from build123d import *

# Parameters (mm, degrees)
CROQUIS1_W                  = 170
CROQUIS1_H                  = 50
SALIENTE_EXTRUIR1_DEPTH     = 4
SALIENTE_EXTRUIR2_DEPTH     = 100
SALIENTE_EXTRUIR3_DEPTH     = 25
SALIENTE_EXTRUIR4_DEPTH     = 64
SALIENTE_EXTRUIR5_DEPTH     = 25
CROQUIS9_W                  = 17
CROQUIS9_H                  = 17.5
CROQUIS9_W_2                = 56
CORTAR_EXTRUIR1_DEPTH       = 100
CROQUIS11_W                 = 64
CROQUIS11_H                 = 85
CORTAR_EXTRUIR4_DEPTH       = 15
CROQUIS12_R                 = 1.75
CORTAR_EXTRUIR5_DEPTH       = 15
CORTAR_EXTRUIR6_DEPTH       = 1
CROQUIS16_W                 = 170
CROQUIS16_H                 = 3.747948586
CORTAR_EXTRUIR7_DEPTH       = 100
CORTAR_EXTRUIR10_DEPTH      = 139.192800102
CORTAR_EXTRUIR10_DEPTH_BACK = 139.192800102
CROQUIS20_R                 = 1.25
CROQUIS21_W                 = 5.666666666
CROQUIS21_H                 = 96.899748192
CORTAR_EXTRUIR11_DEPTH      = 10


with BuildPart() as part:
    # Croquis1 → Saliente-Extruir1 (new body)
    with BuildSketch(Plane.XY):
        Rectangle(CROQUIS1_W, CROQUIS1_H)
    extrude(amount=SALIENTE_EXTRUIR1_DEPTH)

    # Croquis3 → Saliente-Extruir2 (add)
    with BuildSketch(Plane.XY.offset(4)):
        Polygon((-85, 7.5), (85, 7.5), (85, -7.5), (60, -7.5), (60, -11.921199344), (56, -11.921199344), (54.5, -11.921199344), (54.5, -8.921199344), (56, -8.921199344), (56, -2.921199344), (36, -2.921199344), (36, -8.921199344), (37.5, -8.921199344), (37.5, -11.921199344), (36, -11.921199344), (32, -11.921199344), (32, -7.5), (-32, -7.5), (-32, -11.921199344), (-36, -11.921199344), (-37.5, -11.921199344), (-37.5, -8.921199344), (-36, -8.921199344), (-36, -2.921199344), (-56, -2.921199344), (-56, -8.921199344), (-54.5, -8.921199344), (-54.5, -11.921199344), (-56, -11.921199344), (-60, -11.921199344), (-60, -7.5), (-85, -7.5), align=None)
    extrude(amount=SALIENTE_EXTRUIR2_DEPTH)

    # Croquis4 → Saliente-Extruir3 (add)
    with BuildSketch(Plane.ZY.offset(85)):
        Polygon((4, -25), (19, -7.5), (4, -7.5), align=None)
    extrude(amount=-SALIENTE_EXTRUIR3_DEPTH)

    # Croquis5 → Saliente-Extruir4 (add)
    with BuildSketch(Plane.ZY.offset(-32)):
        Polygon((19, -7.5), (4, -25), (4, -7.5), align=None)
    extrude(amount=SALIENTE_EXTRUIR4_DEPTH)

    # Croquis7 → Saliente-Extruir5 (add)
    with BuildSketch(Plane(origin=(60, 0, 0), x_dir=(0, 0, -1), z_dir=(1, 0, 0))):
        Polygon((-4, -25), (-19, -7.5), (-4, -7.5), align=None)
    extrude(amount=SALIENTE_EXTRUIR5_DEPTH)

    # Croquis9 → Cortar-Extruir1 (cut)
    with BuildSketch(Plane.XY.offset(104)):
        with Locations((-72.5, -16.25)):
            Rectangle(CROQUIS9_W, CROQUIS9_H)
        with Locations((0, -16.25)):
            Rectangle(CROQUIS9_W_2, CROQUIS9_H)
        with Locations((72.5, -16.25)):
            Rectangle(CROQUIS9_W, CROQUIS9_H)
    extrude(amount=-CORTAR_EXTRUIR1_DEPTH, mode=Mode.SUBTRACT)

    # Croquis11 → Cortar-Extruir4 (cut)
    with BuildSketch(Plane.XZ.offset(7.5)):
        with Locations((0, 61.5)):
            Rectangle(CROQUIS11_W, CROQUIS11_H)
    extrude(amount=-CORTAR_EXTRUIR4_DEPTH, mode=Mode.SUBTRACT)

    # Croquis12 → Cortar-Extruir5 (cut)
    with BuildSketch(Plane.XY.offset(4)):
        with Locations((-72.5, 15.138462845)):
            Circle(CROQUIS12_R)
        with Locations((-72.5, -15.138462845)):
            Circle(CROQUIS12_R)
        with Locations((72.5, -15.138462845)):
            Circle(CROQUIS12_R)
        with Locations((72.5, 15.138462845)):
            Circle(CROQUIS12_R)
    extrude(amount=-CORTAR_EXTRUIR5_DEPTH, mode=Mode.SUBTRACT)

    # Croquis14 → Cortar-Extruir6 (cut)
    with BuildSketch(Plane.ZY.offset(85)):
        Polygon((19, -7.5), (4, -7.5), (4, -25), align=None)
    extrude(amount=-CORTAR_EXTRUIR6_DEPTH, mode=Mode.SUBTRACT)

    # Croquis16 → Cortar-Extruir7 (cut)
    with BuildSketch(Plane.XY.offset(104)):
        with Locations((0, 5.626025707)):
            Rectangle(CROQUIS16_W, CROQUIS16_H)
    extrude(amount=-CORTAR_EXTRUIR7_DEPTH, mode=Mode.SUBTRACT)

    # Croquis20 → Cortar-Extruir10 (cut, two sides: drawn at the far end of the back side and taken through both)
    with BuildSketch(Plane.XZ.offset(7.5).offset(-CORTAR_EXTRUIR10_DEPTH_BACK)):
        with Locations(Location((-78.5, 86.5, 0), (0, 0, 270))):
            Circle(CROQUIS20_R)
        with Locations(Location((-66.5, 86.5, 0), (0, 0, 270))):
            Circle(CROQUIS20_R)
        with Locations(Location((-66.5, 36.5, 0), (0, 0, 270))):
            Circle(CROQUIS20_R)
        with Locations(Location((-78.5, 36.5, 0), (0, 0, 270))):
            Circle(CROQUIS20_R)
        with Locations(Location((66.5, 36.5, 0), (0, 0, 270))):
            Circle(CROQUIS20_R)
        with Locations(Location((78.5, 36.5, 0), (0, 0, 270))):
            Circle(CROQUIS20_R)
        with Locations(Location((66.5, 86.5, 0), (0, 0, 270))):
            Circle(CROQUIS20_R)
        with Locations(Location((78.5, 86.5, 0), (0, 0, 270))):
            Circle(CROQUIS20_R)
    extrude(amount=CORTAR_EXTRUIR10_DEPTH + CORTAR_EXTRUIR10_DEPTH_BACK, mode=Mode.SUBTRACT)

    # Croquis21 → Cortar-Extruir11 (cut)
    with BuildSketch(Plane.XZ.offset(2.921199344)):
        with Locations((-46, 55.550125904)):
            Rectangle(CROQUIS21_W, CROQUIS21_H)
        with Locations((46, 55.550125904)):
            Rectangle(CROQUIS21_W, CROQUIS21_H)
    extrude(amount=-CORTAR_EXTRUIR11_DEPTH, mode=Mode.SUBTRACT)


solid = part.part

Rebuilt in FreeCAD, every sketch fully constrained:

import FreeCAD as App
import Part
import Sketcher
from FreeCAD import Vector

doc = App.newDocument("Part")
params = doc.addObject("Spreadsheet::Sheet", "Params")
for row, (alias, value) in enumerate([
    ("sketch1_width", "170 mm"),
    ("sketch1_height", "50 mm"),
    ("pad1_length", "4 mm"),
    ("sketch2_width", "170 mm"),
    ("sketch2_width2", "25 mm"),
    ("sketch2_width3", "20 mm"),
    ("sketch2_width4", "64 mm"),
    ("sketch2_height", "15 mm"),
    ("pad2_length", "100 mm"),
    ("sketch3_height", "15 mm"),
    ("sketch3_width", "17.5 mm"),
    ("pad3_length", "25 mm"),
    ("sketch4_height", "15 mm"),
    ("sketch4_width", "17.5 mm"),
    ("pad4_length", "64 mm"),
    ("sketch5_height", "15 mm"),
    ("sketch5_width", "17.5 mm"),
    ("pad5_length", "25 mm"),
    ("sketch6_width", "17 mm"),
    ("sketch6_width2", "56 mm"),
    ("sketch6_height", "17.5 mm"),
    ("pocket1_length", "100 mm"),
    ("sketch7_width", "64 mm"),
    ("sketch7_height", "85 mm"),
    ("pocket2_length", "15 mm"),
    ("sketch8_diameter", "3.5 mm"),
    ("pocket3_length", "15 mm"),
    ("sketch9_height", "15 mm"),
    ("sketch9_width", "17.5 mm"),
    ("pocket4_length", "1 mm"),
    ("sketch10_width", "170 mm"),
    ("pocket5_length", "100 mm"),
    ("sketch11_diameter", "2.5 mm"),
    ("pocket7_length", "10 mm"),
], start=1):
    params.set(f"A{row}", alias)
    params.set(f"B{row}", "=" + value)
    params.setAlias(f"B{row}", alias)

body = doc.addObject("PartDesign::Body", "Body")

# Sketch on XY plane
sketch1 = body.newObject("Sketcher::SketchObject", "Sketch")
sketch1.AttachmentSupport = (doc.getObject("XY_Plane"), [""])
sketch1.MapMode = "FlatFace"
sketch1.addGeometry([
    Part.LineSegment(Vector(-85, 25, 0), Vector(-85, -25, 0)),
    Part.LineSegment(Vector(-85, -25, 0), Vector(85, -25, 0)),
    Part.LineSegment(Vector(85, -25, 0), Vector(85, 25, 0)),
    Part.LineSegment(Vector(85, 25, 0), Vector(-85, 25, 0)),
], False)
sketch1.addConstraint([
    Sketcher.Constraint("Coincident", 0, 2, 1, 1),
    Sketcher.Constraint("Coincident", 1, 2, 2, 1),
    Sketcher.Constraint("Coincident", 2, 2, 3, 1),
    Sketcher.Constraint("Coincident", 3, 2, 0, 1),
    Sketcher.Constraint("Vertical", 0),
    Sketcher.Constraint("Horizontal", 1),
    Sketcher.Constraint("Vertical", 2),
    Sketcher.Constraint("Horizontal", 3),
    Sketcher.Constraint("Symmetric", 0, 2, 2, 2, -1, 1),
    Sketcher.Constraint("DistanceX", 1, 1, 1, 2, 170.0),
    Sketcher.Constraint("DistanceY", 0, 2, 0, 1, 50.0),
])
sketch1.setExpression("Constraints[9]", "Params.sketch1_width")
sketch1.setExpression("Constraints[10]", "Params.sketch1_height")
pad1 = body.newObject("PartDesign::Pad", "Pad")
pad1.Profile = sketch1
pad1.setExpression("Length", "Params.pad1_length")

# Sketch on XY plane
sketch2 = body.newObject("Sketcher::SketchObject", "Sketch001")
sketch2.AttachmentSupport = (doc.getObject("XY_Plane"), [""])
sketch2.MapMode = "FlatFace"
sketch2.AttachmentOffset = App.Placement(Vector(0, 0, 4), App.Rotation())
sketch2.addGeometry([
    Part.LineSegment(Vector(85, 7.5, 0), Vector(-85, 7.5, 0)),  # 0
    Part.LineSegment(Vector(-85, 7.5, 0), Vector(-85, -7.5, 0)),  # 1
    Part.LineSegment(Vector(-85, -7.5, 0), Vector(-60, -7.5, 0)),  # 2
    Part.LineSegment(Vector(-60, -7.5, 0), Vector(-60, -11.9, 0)),  # 3
    Part.LineSegment(Vector(-60, -11.9, 0), Vector(-54.5, -11.9, 0)),  # 4
    Part.LineSegment(Vector(-54.5, -11.9, 0), Vector(-54.5, -8.9, 0)),  # 5
    Part.LineSegment(Vector(-54.5, -8.9, 0), Vector(-56, -8.9, 0)),  # 6
    Part.LineSegment(Vector(-56, -8.9, 0), Vector(-56, -2.9, 0)),  # 7
    Part.LineSegment(Vector(-56, -2.9, 0), Vector(-36, -2.9, 0)),  # 8
    Part.LineSegment(Vector(-36, -2.9, 0), Vector(-36, -8.9, 0)),  # 9
    Part.LineSegment(Vector(-36, -8.9, 0), Vector(-37.5, -8.9, 0)),  # 10
    Part.LineSegment(Vector(-37.5, -8.9, 0), Vector(-37.5, -11.9, 0)),  # 11
    Part.LineSegment(Vector(-37.5, -11.9, 0), Vector(-32, -11.9, 0)),  # 12
    Part.LineSegment(Vector(-32, -11.9, 0), Vector(-32, -7.5, 0)),  # 13
    Part.LineSegment(Vector(-32, -7.5, 0), Vector(32, -7.5, 0)),  # 14
    Part.LineSegment(Vector(32, -7.5, 0), Vector(32, -11.9, 0)),  # 15
    Part.LineSegment(Vector(32, -11.9, 0), Vector(37.5, -11.9, 0)),  # 16
    Part.LineSegment(Vector(37.5, -11.9, 0), Vector(37.5, -8.9, 0)),  # 17
    Part.LineSegment(Vector(37.5, -8.9, 0), Vector(36, -8.9, 0)),  # 18
    Part.LineSegment(Vector(36, -8.9, 0), Vector(36, -2.9, 0)),  # 19
    Part.LineSegment(Vector(36, -2.9, 0), Vector(56, -2.9, 0)),  # 20
    Part.LineSegment(Vector(56, -2.9, 0), Vector(56, -8.9, 0)),  # 21
    Part.LineSegment(Vector(56, -8.9, 0), Vector(54.5, -8.9, 0)),  # 22
    Part.LineSegment(Vector(54.5, -8.9, 0), Vector(54.5, -11.9, 0)),  # 23
    Part.LineSegment(Vector(54.5, -11.9, 0), Vector(60, -11.9, 0)),  # 24
    Part.LineSegment(Vector(60, -11.9, 0), Vector(60, -7.5, 0)),  # 25
    Part.LineSegment(Vector(60, -7.5, 0), Vector(85, -7.5, 0)),  # 26
    Part.LineSegment(Vector(85, -7.5, 0), Vector(85, 7.5, 0)),  # 27
], False)
sketch2.addConstraint([
    Sketcher.Constraint("Coincident", 0, 2, 1, 1),
    Sketcher.Constraint("Coincident", 1, 2, 2, 1),
    Sketcher.Constraint("Coincident", 2, 2, 3, 1),
    Sketcher.Constraint("Coincident", 3, 2, 4, 1),
    Sketcher.Constraint("Coincident", 4, 2, 5, 1),
    Sketcher.Constraint("Coincident", 5, 2, 6, 1),
    Sketcher.Constraint("Coincident", 6, 2, 7, 1),
    Sketcher.Constraint("Coincident", 7, 2, 8, 1),
    Sketcher.Constraint("Coincident", 8, 2, 9, 1),
    Sketcher.Constraint("Coincident", 9, 2, 10, 1),
    Sketcher.Constraint("Coincident", 10, 2, 11, 1),
    Sketcher.Constraint("Coincident", 11, 2, 12, 1),
    Sketcher.Constraint("Coincident", 12, 2, 13, 1),
    Sketcher.Constraint("Coincident", 13, 2, 14, 1),
    Sketcher.Constraint("Coincident", 14, 2, 15, 1),
    Sketcher.Constraint("Coincident", 15, 2, 16, 1),
    Sketcher.Constraint("Coincident", 16, 2, 17, 1),
    Sketcher.Constraint("Coincident", 17, 2, 18, 1),
    Sketcher.Constraint("Coincident", 18, 2, 19, 1),
    Sketcher.Constraint("Coincident", 19, 2, 20, 1),
    Sketcher.Constraint("Coincident", 20, 2, 21, 1),
    Sketcher.Constraint("Coincident", 21, 2, 22, 1),
    Sketcher.Constraint("Coincident", 22, 2, 23, 1),
    Sketcher.Constraint("Coincident", 23, 2, 24, 1),
    Sketcher.Constraint("Coincident", 24, 2, 25, 1),
    Sketcher.Constraint("Coincident", 25, 2, 26, 1),
    Sketcher.Constraint("Coincident", 26, 2, 27, 1),
    Sketcher.Constraint("Coincident", 27, 2, 0, 1),
    Sketcher.Constraint("Horizontal", 0),
    Sketcher.Constraint("Vertical", 1),
    Sketcher.Constraint("Horizontal", 2),
    Sketcher.Constraint("Vertical", 3),
    Sketcher.Constraint("Horizontal", 4),
    Sketcher.Constraint("Vertical", 5),
    Sketcher.Constraint("Horizontal", 6),
    Sketcher.Constraint("Vertical", 7),
    Sketcher.Constraint("Horizontal", 8),
    Sketcher.Constraint("Vertical", 9),
    Sketcher.Constraint("Horizontal", 10),
    Sketcher.Constraint("Vertical", 11),
    Sketcher.Constraint("Horizontal", 12),
    Sketcher.Constraint("Vertical", 13),
    Sketcher.Constraint("Horizontal", 14),
    Sketcher.Constraint("Vertical", 15),
    Sketcher.Constraint("Horizontal", 16),
    Sketcher.Constraint("Vertical", 17),
    Sketcher.Constraint("Horizontal", 18),
    Sketcher.Constraint("Vertical", 19),
    Sketcher.Constraint("Horizontal", 20),
    Sketcher.Constraint("Vertical", 21),
    Sketcher.Constraint("Horizontal", 22),
    Sketcher.Constraint("Vertical", 23),
    Sketcher.Constraint("Horizontal", 24),
    Sketcher.Constraint("Vertical", 25),
    Sketcher.Constraint("Horizontal", 26),
    Sketcher.Constraint("Vertical", 27),
    Sketcher.Constraint("Symmetric", 0, 2, 26, 2, -1, 1),
    Sketcher.Constraint("Symmetric", 12, 2, 15, 2, -2),
    Sketcher.Constraint("Symmetric", 10, 2, 17, 2, -2),
    Sketcher.Constraint("Symmetric", 8, 2, 19, 2, -2),
    Sketcher.Constraint("Symmetric", 6, 2, 21, 2, -2),
    Sketcher.Constraint("Symmetric", 4, 2, 23, 2, -2),
    Sketcher.Constraint("Symmetric", 2, 2, 25, 2, -2),
    Sketcher.Constraint("Horizontal", 6, 2, 9, 2),
    Sketcher.Constraint("Horizontal", 4, 2, 11, 2),
    Sketcher.Constraint("Horizontal", 2, 2, 13, 2),
    Sketcher.Constraint("Equal", 6, 10),
    Sketcher.Constraint("Equal", 4, 12),
    Sketcher.Constraint("DistanceX", 0, 2, 0, 1, 170.0),
    Sketcher.Constraint("DistanceX", 2, 1, 2, 2, 25.0),
    Sketcher.Constraint("DistanceX", 8, 1, 8, 2, 20.0),
    Sketcher.Constraint("DistanceX", 14, 1, 14, 2, 64.0),
    Sketcher.Constraint("DistanceY", 1, 2, 1, 1, 15.0),
    Sketcher.Constraint("DistanceY", 5, 1, 5, 2, 3.0),
    Sketcher.Constraint("DistanceY", 7, 1, 7, 2, 6.0),
    Sketcher.Constraint("DistanceX", 4, 1, 4, 2, 5.5),
    Sketcher.Constraint("DistanceY", 3, 2, 3, 1, 4.421199),
])
sketch2.setExpression("Constraints[68]", "Params.sketch2_width")
sketch2.setExpression("Constraints[69]", "Params.sketch2_width2")
sketch2.setExpression("Constraints[70]", "Params.sketch2_width3")
sketch2.setExpression("Constraints[71]", "Params.sketch2_width4")
sketch2.setExpression("Constraints[72]", "Params.sketch2_height")
pad2 = body.newObject("PartDesign::Pad", "Pad001")
pad2.Profile = sketch2
pad2.setExpression("Length", "Params.pad2_length")

# Sketch on YZ plane
sketch3 = body.newObject("Sketcher::SketchObject", "Sketch002")
sketch3.AttachmentSupport = (doc.getObject("YZ_Plane"), [""])
sketch3.MapMode = "FlatFace"
sketch3.AttachmentOffset = App.Placement(Vector(0, 0, -85), App.Rotation())
sketch3.addGeometry([
    Part.LineSegment(Vector(-25, 4, 0), Vector(-8, 19, 0)),
    Part.LineSegment(Vector(-8, 19, 0), Vector(-8, 4, 0)),
    Part.LineSegment(Vector(-8, 4, 0), Vector(-25, 4, 0)),
], False)
sketch3.addConstraint([
    Sketcher.Constraint("Coincident", 0, 2, 1, 1),
    Sketcher.Constraint("Coincident", 1, 2, 2, 1),
    Sketcher.Constraint("Coincident", 2, 2, 0, 1),
    Sketcher.Constraint("Vertical", 1),
    Sketcher.Constraint("Horizontal", 2),
    Sketcher.Constraint("DistanceY", 1, 2, 1, 1, 15.0),
    Sketcher.Constraint("DistanceX", 2, 2, 2, 1, 17.5),
    Sketcher.Constraint("DistanceY", -1, 1, 0, 2, 19.0),
    Sketcher.Constraint("DistanceX", 2, 2, -1, 1, 25.0),
])
sketch3.setExpression("Constraints[5]", "Params.sketch3_height")
sketch3.setExpression("Constraints[6]", "Params.sketch3_width")
pad3 = body.newObject("PartDesign::Pad", "Pad002")
pad3.Profile = sketch3
pad3.setExpression("Length", "Params.pad3_length")

# Sketch on YZ plane
sketch4 = body.newObject("Sketcher::SketchObject", "Sketch003")
sketch4.AttachmentSupport = (doc.getObject("YZ_Plane"), [""])
sketch4.MapMode = "FlatFace"
sketch4.AttachmentOffset = App.Placement(Vector(0, 0, 32), App.Rotation())
sketch4.addGeometry([
    Part.LineSegment(Vector(-25, 4, 0), Vector(-8, 19, 0)),
    Part.LineSegment(Vector(-8, 19, 0), Vector(-8, 4, 0)),
    Part.LineSegment(Vector(-8, 4, 0), Vector(-25, 4, 0)),
], False)
sketch4.addConstraint([
    Sketcher.Constraint("Coincident", 0, 2, 1, 1),
    Sketcher.Constraint("Coincident", 1, 2, 2, 1),
    Sketcher.Constraint("Coincident", 2, 2, 0, 1),
    Sketcher.Constraint("Vertical", 1),
    Sketcher.Constraint("Horizontal", 2),
    Sketcher.Constraint("DistanceY", 1, 2, 1, 1, 15.0),
    Sketcher.Constraint("DistanceX", 2, 2, 2, 1, 17.5),
    Sketcher.Constraint("DistanceY", -1, 1, 0, 2, 19.0),
    Sketcher.Constraint("DistanceX", 2, 2, -1, 1, 25.0),
])
sketch4.setExpression("Constraints[5]", "Params.sketch4_height")
sketch4.setExpression("Constraints[6]", "Params.sketch4_width")
pad4 = body.newObject("PartDesign::Pad", "Pad003")
pad4.Profile = sketch4
pad4.setExpression("Length", "Params.pad4_length")
pad4.Reversed = True

# Sketch on YZ plane
sketch5 = body.newObject("Sketcher::SketchObject", "Sketch004")
sketch5.AttachmentSupport = (doc.getObject("YZ_Plane"), [""])
sketch5.MapMode = "FlatFace"
sketch5.AttachmentOffset = App.Placement(Vector(0, 0, 60), App.Rotation())
sketch5.addGeometry([
    Part.LineSegment(Vector(-8, 19, 0), Vector(-25, 4, 0)),
    Part.LineSegment(Vector(-25, 4, 0), Vector(-8, 4, 0)),
    Part.LineSegment(Vector(-8, 4, 0), Vector(-8, 19, 0)),
], False)
sketch5.addConstraint([
    Sketcher.Constraint("Coincident", 0, 2, 1, 1),
    Sketcher.Constraint("Coincident", 1, 2, 2, 1),
    Sketcher.Constraint("Coincident", 2, 2, 0, 1),
    Sketcher.Constraint("Horizontal", 1),
    Sketcher.Constraint("Vertical", 2),
    Sketcher.Constraint("DistanceY", 2, 1, 2, 2, 15.0),
    Sketcher.Constraint("DistanceX", 1, 1, 1, 2, 17.5),
    Sketcher.Constraint("DistanceX", 0, 2, -1, 1, 25.0),
    Sketcher.Constraint("DistanceY", -1, 1, 0, 2, 4.0),
])
sketch5.setExpression("Constraints[5]", "Params.sketch5_height")
sketch5.setExpression("Constraints[6]", "Params.sketch5_width")
pad5 = body.newObject("PartDesign::Pad", "Pad004")
pad5.Profile = sketch5
pad5.setExpression("Length", "Params.pad5_length")

# Sketch on XY plane
sketch6 = body.newObject("Sketcher::SketchObject", "Sketch005")
sketch6.AttachmentSupport = (doc.getObject("XY_Plane"), [""])
sketch6.MapMode = "FlatFace"
sketch6.AttachmentOffset = App.Placement(Vector(0, 0, 104), App.Rotation())
sketch6.addGeometry([
    Part.LineSegment(Vector(-81, -8, 0), Vector(-81, -25, 0)),  # 0
    Part.LineSegment(Vector(-81, -25, 0), Vector(-64, -25, 0)),  # 1
    Part.LineSegment(Vector(-64, -25, 0), Vector(-64, -8, 0)),  # 2
    Part.LineSegment(Vector(-64, -8, 0), Vector(-81, -8, 0)),  # 3
    Part.LineSegment(Vector(-28, -8, 0), Vector(-28, -25, 0)),  # 4
    Part.LineSegment(Vector(-28, -25, 0), Vector(28, -25, 0)),  # 5
    Part.LineSegment(Vector(28, -25, 0), Vector(28, -8, 0)),  # 6
    Part.LineSegment(Vector(28, -8, 0), Vector(-28, -8, 0)),  # 7
    Part.LineSegment(Vector(64, -8, 0), Vector(64, -25, 0)),  # 8
    Part.LineSegment(Vector(64, -25, 0), Vector(81, -25, 0)),  # 9
    Part.LineSegment(Vector(81, -25, 0), Vector(81, -8, 0)),  # 10
    Part.LineSegment(Vector(81, -8, 0), Vector(64, -8, 0)),  # 11
], False)
sketch6.addConstraint([
    Sketcher.Constraint("Coincident", 0, 2, 1, 1),
    Sketcher.Constraint("Coincident", 1, 2, 2, 1),
    Sketcher.Constraint("Coincident", 2, 2, 3, 1),
    Sketcher.Constraint("Coincident", 3, 2, 0, 1),
    Sketcher.Constraint("Coincident", 4, 2, 5, 1),
    Sketcher.Constraint("Coincident", 5, 2, 6, 1),
    Sketcher.Constraint("Coincident", 6, 2, 7, 1),
    Sketcher.Constraint("Coincident", 7, 2, 4, 1),
    Sketcher.Constraint("Coincident", 8, 2, 9, 1),
    Sketcher.Constraint("Coincident", 9, 2, 10, 1),
    Sketcher.Constraint("Coincident", 10, 2, 11, 1),
    Sketcher.Constraint("Coincident", 11, 2, 8, 1),
    Sketcher.Constraint("Vertical", 0),
    Sketcher.Constraint("Horizontal", 1),
    Sketcher.Constraint("Vertical", 2),
    Sketcher.Constraint("Horizontal", 3),
    Sketcher.Constraint("Vertical", 4),
    Sketcher.Constraint("Horizontal", 5),
    Sketcher.Constraint("Vertical", 6),
    Sketcher.Constraint("Horizontal", 7),
    Sketcher.Constraint("Vertical", 8),
    Sketcher.Constraint("Horizontal", 9),
    Sketcher.Constraint("Vertical", 10),
    Sketcher.Constraint("Horizontal", 11),
    Sketcher.Constraint("Symmetric", 1, 2, 8, 2, -2),
    Sketcher.Constraint("Symmetric", 3, 2, 10, 2, -2),
    Sketcher.Constraint("Horizontal", 1, 2, 4, 2),
    Sketcher.Constraint("Horizontal", 3, 2, 6, 2),
    Sketcher.Constraint("DistanceX", 1, 1, 1, 2, 17.0),
    Sketcher.Constraint("DistanceX", 5, 1, 5, 2, 56.0),
    Sketcher.Constraint("DistanceY", 0, 2, 0, 1, 17.5),
    Sketcher.Constraint("DistanceX", 0, 2, -1, 1, 81.0),
    Sketcher.Constraint("DistanceY", 0, 2, -1, 1, 25.0),
    Sketcher.Constraint("DistanceX", 4, 2, -1, 1, 28.0),
])
sketch6.setExpression("Constraints[28]", "Params.sketch6_width")
sketch6.setExpression("Constraints[29]", "Params.sketch6_width2")
sketch6.setExpression("Constraints[30]", "Params.sketch6_height")
pocket1 = body.newObject("PartDesign::Pocket", "Pocket")
pocket1.Profile = sketch6
pocket1.setExpression("Length", "Params.pocket1_length")

# Sketch on XZ plane
sketch7 = body.newObject("Sketcher::SketchObject", "Sketch006")
sketch7.AttachmentSupport = (doc.getObject("XZ_Plane"), [""])
sketch7.MapMode = "FlatFace"
sketch7.AttachmentOffset = App.Placement(Vector(0, 0, 7.5), App.Rotation())
sketch7.addGeometry([
    Part.LineSegment(Vector(-32, 104, 0), Vector(-32, 19, 0)),
    Part.LineSegment(Vector(-32, 19, 0), Vector(32, 19, 0)),
    Part.LineSegment(Vector(32, 19, 0), Vector(32, 104, 0)),
    Part.LineSegment(Vector(32, 104, 0), Vector(-32, 104, 0)),
], False)
sketch7.addConstraint([
    Sketcher.Constraint("Coincident", 0, 2, 1, 1),
    Sketcher.Constraint("Coincident", 1, 2, 2, 1),
    Sketcher.Constraint("Coincident", 2, 2, 3, 1),
    Sketcher.Constraint("Coincident", 3, 2, 0, 1),
    Sketcher.Constraint("Vertical", 0),
    Sketcher.Constraint("Horizontal", 1),
    Sketcher.Constraint("Vertical", 2),
    Sketcher.Constraint("Horizontal", 3),
    Sketcher.Constraint("DistanceX", 1, 1, 1, 2, 64.0),
    Sketcher.Constraint("DistanceY", 0, 2, 0, 1, 85.0),
    Sketcher.Constraint("DistanceX", 0, 2, -1, 1, 32.0),
    Sketcher.Constraint("DistanceY", -1, 1, 0, 2, 19.0),
])
sketch7.setExpression("Constraints[8]", "Params.sketch7_width")
sketch7.setExpression("Constraints[9]", "Params.sketch7_height")
pocket2 = body.newObject("PartDesign::Pocket", "Pocket001")
pocket2.Profile = sketch7
pocket2.setExpression("Length", "Params.pocket2_length")

# Sketch on XY plane
sketch8 = body.newObject("Sketcher::SketchObject", "Sketch007")
sketch8.AttachmentSupport = (doc.getObject("XY_Plane"), [""])
sketch8.MapMode = "FlatFace"
sketch8.AttachmentOffset = App.Placement(Vector(0, 0, 4), App.Rotation())
sketch8.addGeometry([
    Part.Circle(Vector(-72.5, 15.1, 0), Vector(0, 0, 1), 1.8),
    Part.Circle(Vector(-72.5, -15.1, 0), Vector(0, 0, 1), 1.8),
    Part.Circle(Vector(72.5, -15.1, 0), Vector(0, 0, 1), 1.8),
    Part.Circle(Vector(72.5, 15.1, 0), Vector(0, 0, 1), 1.8),
], False)
sketch8.addConstraint([
    Sketcher.Constraint("Equal", 0, 1),
    Sketcher.Constraint("Equal", 1, 2),
    Sketcher.Constraint("Equal", 2, 3),
    Sketcher.Constraint("Symmetric", 0, 3, 2, 3, -1, 1),
    Sketcher.Constraint("Symmetric", 1, 3, 3, 3, -1, 1),
    Sketcher.Constraint("Symmetric", 1, 3, 2, 3, -2),
    Sketcher.Constraint("Diameter", 0, 3.5),
    Sketcher.Constraint("DistanceX", 1, 3, 2, 3, 145.0),
    Sketcher.Constraint("DistanceY", -1, 1, 0, 3, 15.138463),
])
sketch8.setExpression("Constraints[6]", "Params.sketch8_diameter")
pocket3 = body.newObject("PartDesign::Pocket", "Pocket002")
pocket3.Profile = sketch8
pocket3.setExpression("Length", "Params.pocket3_length")

# Sketch on YZ plane
sketch9 = body.newObject("Sketcher::SketchObject", "Sketch008")
sketch9.AttachmentSupport = (doc.getObject("YZ_Plane"), [""])
sketch9.MapMode = "FlatFace"
sketch9.AttachmentOffset = App.Placement(Vector(0, 0, -85), App.Rotation())
sketch9.addGeometry([
    Part.LineSegment(Vector(-8, 19, 0), Vector(-8, 4, 0)),
    Part.LineSegment(Vector(-8, 4, 0), Vector(-25, 4, 0)),
    Part.LineSegment(Vector(-25, 4, 0), Vector(-8, 19, 0)),
], False)
sketch9.addConstraint([
    Sketcher.Constraint("Coincident", 0, 2, 1, 1),
    Sketcher.Constraint("Coincident", 1, 2, 2, 1),
    Sketcher.Constraint("Coincident", 2, 2, 0, 1),
    Sketcher.Constraint("Vertical", 0),
    Sketcher.Constraint("Horizontal", 1),
    Sketcher.Constraint("DistanceY", 0, 2, 0, 1, 15.0),
    Sketcher.Constraint("DistanceX", 1, 2, 1, 1, 17.5),
    Sketcher.Constraint("DistanceY", -1, 1, 0, 2, 4.0),
    Sketcher.Constraint("DistanceX", 1, 2, -1, 1, 25.0),
])
sketch9.setExpression("Constraints[5]", "Params.sketch9_height")
sketch9.setExpression("Constraints[6]", "Params.sketch9_width")
pocket4 = body.newObject("PartDesign::Pocket", "Pocket003")
pocket4.Profile = sketch9
pocket4.setExpression("Length", "Params.pocket4_length")
pocket4.Reversed = True

# Sketch on XY plane
sketch10 = body.newObject("Sketcher::SketchObject", "Sketch009")
sketch10.AttachmentSupport = (doc.getObject("XY_Plane"), [""])
sketch10.MapMode = "FlatFace"
sketch10.AttachmentOffset = App.Placement(Vector(0, 0, 104), App.Rotation())
sketch10.addGeometry([
    Part.LineSegment(Vector(-85, 7.5, 0), Vector(-85, 3.8, 0)),
    Part.LineSegment(Vector(-85, 3.8, 0), Vector(85, 3.8, 0)),
    Part.LineSegment(Vector(85, 3.8, 0), Vector(85, 7.5, 0)),
    Part.LineSegment(Vector(85, 7.5, 0), Vector(-85, 7.5, 0)),
], False)
sketch10.addConstraint([
    Sketcher.Constraint("Coincident", 0, 2, 1, 1),
    Sketcher.Constraint("Coincident", 1, 2, 2, 1),
    Sketcher.Constraint("Coincident", 2, 2, 3, 1),
    Sketcher.Constraint("Coincident", 3, 2, 0, 1),
    Sketcher.Constraint("Vertical", 0),
    Sketcher.Constraint("Horizontal", 1),
    Sketcher.Constraint("Vertical", 2),
    Sketcher.Constraint("Horizontal", 3),
    Sketcher.Constraint("DistanceX", 1, 1, 1, 2, 170.0),
    Sketcher.Constraint("DistanceX", 0, 2, -1, 1, 85.0),
    Sketcher.Constraint("DistanceY", -1, 1, 2, 2, 7.5),
    Sketcher.Constraint("DistanceY", 0, 2, 0, 1, 3.747949),
])
sketch10.setExpression("Constraints[8]", "Params.sketch10_width")
pocket5 = body.newObject("PartDesign::Pocket", "Pocket004")
pocket5.Profile = sketch10
pocket5.setExpression("Length", "Params.pocket5_length")

# Sketch on XZ plane
sketch11 = body.newObject("Sketcher::SketchObject", "Sketch010")
sketch11.AttachmentSupport = (doc.getObject("XZ_Plane"), [""])
sketch11.MapMode = "FlatFace"
sketch11.AttachmentOffset = App.Placement(Vector(0, 0, 7.5), App.Rotation())
sketch11.addGeometry([
    Part.Circle(Vector(-78.5, 86.5, 0), Vector(0, 0, 1), 1.2),  # 0
    Part.Circle(Vector(-66.5, 86.5, 0), Vector(0, 0, 1), 1.2),  # 1
    Part.Circle(Vector(-66.5, 36.5, 0), Vector(0, 0, 1), 1.2),  # 2
    Part.Circle(Vector(-78.5, 36.5, 0), Vector(0, 0, 1), 1.2),  # 3
    Part.Circle(Vector(66.5, 36.5, 0), Vector(0, 0, 1), 1.2),  # 4
    Part.Circle(Vector(78.5, 36.5, 0), Vector(0, 0, 1), 1.2),  # 5
    Part.Circle(Vector(66.5, 86.5, 0), Vector(0, 0, 1), 1.2),  # 6
    Part.Circle(Vector(78.5, 86.5, 0), Vector(0, 0, 1), 1.2),  # 7
], False)
sketch11.addConstraint([
    Sketcher.Constraint("Equal", 0, 1),
    Sketcher.Constraint("Equal", 1, 2),
    Sketcher.Constraint("Equal", 2, 3),
    Sketcher.Constraint("Equal", 3, 4),
    Sketcher.Constraint("Equal", 4, 5),
    Sketcher.Constraint("Equal", 5, 6),
    Sketcher.Constraint("Equal", 6, 7),
    Sketcher.Constraint("Symmetric", 2, 3, 4, 3, -2),
    Sketcher.Constraint("Symmetric", 3, 3, 5, 3, -2),
    Sketcher.Constraint("Symmetric", 1, 3, 6, 3, -2),
    Sketcher.Constraint("Symmetric", 0, 3, 7, 3, -2),
    Sketcher.Constraint("Horizontal", 0, 3, 1, 3),
    Sketcher.Constraint("Horizontal", 2, 3, 3, 3),
    Sketcher.Constraint("Vertical", 1, 3, 2, 3),
    Sketcher.Constraint("Vertical", 0, 3, 3, 3),
    Sketcher.Constraint("Diameter", 0, 2.5),
    Sketcher.Constraint("DistanceX", 0, 3, 1, 3, 12.0),
    Sketcher.Constraint("DistanceY", 2, 3, 1, 3, 50.0),
    Sketcher.Constraint("DistanceX", 2, 3, 4, 3, 133.0),
    Sketcher.Constraint("DistanceY", -1, 1, 0, 3, 86.5),
])
sketch11.setExpression("Constraints[15]", "Params.sketch11_diameter")
pocket6 = body.newObject("PartDesign::Pocket", "Pocket005")
pocket6.Profile = sketch11
pocket6.Type = "ThroughAll"
pocket6.Midplane = True

# Sketch on XZ plane
sketch12 = body.newObject("Sketcher::SketchObject", "Sketch011")
sketch12.AttachmentSupport = (doc.getObject("XZ_Plane"), [""])
sketch12.MapMode = "FlatFace"
sketch12.AttachmentOffset = App.Placement(Vector(0, 0, 2.921199), App.Rotation())
sketch12.addGeometry([
    Part.LineSegment(Vector(-49, 104, 0), Vector(-49, 7, 0)),  # 0
    Part.LineSegment(Vector(-49, 7, 0), Vector(-43, 7, 0)),  # 1
    Part.LineSegment(Vector(-43, 7, 0), Vector(-43, 104, 0)),  # 2
    Part.LineSegment(Vector(-43, 104, 0), Vector(-49, 104, 0)),  # 3
    Part.LineSegment(Vector(43, 104, 0), Vector(43, 7, 0)),  # 4
    Part.LineSegment(Vector(43, 7, 0), Vector(49, 7, 0)),  # 5
    Part.LineSegment(Vector(49, 7, 0), Vector(49, 104, 0)),  # 6
    Part.LineSegment(Vector(49, 104, 0), Vector(43, 104, 0)),  # 7
], False)
sketch12.addConstraint([
    Sketcher.Constraint("Coincident", 0, 2, 1, 1),
    Sketcher.Constraint("Coincident", 1, 2, 2, 1),
    Sketcher.Constraint("Coincident", 2, 2, 3, 1),
    Sketcher.Constraint("Coincident", 3, 2, 0, 1),
    Sketcher.Constraint("Coincident", 4, 2, 5, 1),
    Sketcher.Constraint("Coincident", 5, 2, 6, 1),
    Sketcher.Constraint("Coincident", 6, 2, 7, 1),
    Sketcher.Constraint("Coincident", 7, 2, 4, 1),
    Sketcher.Constraint("Vertical", 0),
    Sketcher.Constraint("Horizontal", 1),
    Sketcher.Constraint("Vertical", 2),
    Sketcher.Constraint("Horizontal", 3),
    Sketcher.Constraint("Vertical", 4),
    Sketcher.Constraint("Horizontal", 5),
    Sketcher.Constraint("Vertical", 6),
    Sketcher.Constraint("Horizontal", 7),
    Sketcher.Constraint("Symmetric", 1, 2, 4, 2, -2),
    Sketcher.Constraint("Symmetric", 3, 2, 6, 2, -2),
    Sketcher.Constraint("DistanceY", -1, 1, 2, 2, 104.0),
    Sketcher.Constraint("DistanceX", 0, 2, 4, 2, 92.0),
    Sketcher.Constraint("DistanceY", 0, 2, 0, 1, 96.899748),
    Sketcher.Constraint("DistanceX", 1, 1, 1, 2, 5.666667),
])
pocket7 = body.newObject("PartDesign::Pocket", "Pocket006")
pocket7.Profile = sketch12
pocket7.setExpression("Length", "Params.pocket7_length")

doc.recompute()
